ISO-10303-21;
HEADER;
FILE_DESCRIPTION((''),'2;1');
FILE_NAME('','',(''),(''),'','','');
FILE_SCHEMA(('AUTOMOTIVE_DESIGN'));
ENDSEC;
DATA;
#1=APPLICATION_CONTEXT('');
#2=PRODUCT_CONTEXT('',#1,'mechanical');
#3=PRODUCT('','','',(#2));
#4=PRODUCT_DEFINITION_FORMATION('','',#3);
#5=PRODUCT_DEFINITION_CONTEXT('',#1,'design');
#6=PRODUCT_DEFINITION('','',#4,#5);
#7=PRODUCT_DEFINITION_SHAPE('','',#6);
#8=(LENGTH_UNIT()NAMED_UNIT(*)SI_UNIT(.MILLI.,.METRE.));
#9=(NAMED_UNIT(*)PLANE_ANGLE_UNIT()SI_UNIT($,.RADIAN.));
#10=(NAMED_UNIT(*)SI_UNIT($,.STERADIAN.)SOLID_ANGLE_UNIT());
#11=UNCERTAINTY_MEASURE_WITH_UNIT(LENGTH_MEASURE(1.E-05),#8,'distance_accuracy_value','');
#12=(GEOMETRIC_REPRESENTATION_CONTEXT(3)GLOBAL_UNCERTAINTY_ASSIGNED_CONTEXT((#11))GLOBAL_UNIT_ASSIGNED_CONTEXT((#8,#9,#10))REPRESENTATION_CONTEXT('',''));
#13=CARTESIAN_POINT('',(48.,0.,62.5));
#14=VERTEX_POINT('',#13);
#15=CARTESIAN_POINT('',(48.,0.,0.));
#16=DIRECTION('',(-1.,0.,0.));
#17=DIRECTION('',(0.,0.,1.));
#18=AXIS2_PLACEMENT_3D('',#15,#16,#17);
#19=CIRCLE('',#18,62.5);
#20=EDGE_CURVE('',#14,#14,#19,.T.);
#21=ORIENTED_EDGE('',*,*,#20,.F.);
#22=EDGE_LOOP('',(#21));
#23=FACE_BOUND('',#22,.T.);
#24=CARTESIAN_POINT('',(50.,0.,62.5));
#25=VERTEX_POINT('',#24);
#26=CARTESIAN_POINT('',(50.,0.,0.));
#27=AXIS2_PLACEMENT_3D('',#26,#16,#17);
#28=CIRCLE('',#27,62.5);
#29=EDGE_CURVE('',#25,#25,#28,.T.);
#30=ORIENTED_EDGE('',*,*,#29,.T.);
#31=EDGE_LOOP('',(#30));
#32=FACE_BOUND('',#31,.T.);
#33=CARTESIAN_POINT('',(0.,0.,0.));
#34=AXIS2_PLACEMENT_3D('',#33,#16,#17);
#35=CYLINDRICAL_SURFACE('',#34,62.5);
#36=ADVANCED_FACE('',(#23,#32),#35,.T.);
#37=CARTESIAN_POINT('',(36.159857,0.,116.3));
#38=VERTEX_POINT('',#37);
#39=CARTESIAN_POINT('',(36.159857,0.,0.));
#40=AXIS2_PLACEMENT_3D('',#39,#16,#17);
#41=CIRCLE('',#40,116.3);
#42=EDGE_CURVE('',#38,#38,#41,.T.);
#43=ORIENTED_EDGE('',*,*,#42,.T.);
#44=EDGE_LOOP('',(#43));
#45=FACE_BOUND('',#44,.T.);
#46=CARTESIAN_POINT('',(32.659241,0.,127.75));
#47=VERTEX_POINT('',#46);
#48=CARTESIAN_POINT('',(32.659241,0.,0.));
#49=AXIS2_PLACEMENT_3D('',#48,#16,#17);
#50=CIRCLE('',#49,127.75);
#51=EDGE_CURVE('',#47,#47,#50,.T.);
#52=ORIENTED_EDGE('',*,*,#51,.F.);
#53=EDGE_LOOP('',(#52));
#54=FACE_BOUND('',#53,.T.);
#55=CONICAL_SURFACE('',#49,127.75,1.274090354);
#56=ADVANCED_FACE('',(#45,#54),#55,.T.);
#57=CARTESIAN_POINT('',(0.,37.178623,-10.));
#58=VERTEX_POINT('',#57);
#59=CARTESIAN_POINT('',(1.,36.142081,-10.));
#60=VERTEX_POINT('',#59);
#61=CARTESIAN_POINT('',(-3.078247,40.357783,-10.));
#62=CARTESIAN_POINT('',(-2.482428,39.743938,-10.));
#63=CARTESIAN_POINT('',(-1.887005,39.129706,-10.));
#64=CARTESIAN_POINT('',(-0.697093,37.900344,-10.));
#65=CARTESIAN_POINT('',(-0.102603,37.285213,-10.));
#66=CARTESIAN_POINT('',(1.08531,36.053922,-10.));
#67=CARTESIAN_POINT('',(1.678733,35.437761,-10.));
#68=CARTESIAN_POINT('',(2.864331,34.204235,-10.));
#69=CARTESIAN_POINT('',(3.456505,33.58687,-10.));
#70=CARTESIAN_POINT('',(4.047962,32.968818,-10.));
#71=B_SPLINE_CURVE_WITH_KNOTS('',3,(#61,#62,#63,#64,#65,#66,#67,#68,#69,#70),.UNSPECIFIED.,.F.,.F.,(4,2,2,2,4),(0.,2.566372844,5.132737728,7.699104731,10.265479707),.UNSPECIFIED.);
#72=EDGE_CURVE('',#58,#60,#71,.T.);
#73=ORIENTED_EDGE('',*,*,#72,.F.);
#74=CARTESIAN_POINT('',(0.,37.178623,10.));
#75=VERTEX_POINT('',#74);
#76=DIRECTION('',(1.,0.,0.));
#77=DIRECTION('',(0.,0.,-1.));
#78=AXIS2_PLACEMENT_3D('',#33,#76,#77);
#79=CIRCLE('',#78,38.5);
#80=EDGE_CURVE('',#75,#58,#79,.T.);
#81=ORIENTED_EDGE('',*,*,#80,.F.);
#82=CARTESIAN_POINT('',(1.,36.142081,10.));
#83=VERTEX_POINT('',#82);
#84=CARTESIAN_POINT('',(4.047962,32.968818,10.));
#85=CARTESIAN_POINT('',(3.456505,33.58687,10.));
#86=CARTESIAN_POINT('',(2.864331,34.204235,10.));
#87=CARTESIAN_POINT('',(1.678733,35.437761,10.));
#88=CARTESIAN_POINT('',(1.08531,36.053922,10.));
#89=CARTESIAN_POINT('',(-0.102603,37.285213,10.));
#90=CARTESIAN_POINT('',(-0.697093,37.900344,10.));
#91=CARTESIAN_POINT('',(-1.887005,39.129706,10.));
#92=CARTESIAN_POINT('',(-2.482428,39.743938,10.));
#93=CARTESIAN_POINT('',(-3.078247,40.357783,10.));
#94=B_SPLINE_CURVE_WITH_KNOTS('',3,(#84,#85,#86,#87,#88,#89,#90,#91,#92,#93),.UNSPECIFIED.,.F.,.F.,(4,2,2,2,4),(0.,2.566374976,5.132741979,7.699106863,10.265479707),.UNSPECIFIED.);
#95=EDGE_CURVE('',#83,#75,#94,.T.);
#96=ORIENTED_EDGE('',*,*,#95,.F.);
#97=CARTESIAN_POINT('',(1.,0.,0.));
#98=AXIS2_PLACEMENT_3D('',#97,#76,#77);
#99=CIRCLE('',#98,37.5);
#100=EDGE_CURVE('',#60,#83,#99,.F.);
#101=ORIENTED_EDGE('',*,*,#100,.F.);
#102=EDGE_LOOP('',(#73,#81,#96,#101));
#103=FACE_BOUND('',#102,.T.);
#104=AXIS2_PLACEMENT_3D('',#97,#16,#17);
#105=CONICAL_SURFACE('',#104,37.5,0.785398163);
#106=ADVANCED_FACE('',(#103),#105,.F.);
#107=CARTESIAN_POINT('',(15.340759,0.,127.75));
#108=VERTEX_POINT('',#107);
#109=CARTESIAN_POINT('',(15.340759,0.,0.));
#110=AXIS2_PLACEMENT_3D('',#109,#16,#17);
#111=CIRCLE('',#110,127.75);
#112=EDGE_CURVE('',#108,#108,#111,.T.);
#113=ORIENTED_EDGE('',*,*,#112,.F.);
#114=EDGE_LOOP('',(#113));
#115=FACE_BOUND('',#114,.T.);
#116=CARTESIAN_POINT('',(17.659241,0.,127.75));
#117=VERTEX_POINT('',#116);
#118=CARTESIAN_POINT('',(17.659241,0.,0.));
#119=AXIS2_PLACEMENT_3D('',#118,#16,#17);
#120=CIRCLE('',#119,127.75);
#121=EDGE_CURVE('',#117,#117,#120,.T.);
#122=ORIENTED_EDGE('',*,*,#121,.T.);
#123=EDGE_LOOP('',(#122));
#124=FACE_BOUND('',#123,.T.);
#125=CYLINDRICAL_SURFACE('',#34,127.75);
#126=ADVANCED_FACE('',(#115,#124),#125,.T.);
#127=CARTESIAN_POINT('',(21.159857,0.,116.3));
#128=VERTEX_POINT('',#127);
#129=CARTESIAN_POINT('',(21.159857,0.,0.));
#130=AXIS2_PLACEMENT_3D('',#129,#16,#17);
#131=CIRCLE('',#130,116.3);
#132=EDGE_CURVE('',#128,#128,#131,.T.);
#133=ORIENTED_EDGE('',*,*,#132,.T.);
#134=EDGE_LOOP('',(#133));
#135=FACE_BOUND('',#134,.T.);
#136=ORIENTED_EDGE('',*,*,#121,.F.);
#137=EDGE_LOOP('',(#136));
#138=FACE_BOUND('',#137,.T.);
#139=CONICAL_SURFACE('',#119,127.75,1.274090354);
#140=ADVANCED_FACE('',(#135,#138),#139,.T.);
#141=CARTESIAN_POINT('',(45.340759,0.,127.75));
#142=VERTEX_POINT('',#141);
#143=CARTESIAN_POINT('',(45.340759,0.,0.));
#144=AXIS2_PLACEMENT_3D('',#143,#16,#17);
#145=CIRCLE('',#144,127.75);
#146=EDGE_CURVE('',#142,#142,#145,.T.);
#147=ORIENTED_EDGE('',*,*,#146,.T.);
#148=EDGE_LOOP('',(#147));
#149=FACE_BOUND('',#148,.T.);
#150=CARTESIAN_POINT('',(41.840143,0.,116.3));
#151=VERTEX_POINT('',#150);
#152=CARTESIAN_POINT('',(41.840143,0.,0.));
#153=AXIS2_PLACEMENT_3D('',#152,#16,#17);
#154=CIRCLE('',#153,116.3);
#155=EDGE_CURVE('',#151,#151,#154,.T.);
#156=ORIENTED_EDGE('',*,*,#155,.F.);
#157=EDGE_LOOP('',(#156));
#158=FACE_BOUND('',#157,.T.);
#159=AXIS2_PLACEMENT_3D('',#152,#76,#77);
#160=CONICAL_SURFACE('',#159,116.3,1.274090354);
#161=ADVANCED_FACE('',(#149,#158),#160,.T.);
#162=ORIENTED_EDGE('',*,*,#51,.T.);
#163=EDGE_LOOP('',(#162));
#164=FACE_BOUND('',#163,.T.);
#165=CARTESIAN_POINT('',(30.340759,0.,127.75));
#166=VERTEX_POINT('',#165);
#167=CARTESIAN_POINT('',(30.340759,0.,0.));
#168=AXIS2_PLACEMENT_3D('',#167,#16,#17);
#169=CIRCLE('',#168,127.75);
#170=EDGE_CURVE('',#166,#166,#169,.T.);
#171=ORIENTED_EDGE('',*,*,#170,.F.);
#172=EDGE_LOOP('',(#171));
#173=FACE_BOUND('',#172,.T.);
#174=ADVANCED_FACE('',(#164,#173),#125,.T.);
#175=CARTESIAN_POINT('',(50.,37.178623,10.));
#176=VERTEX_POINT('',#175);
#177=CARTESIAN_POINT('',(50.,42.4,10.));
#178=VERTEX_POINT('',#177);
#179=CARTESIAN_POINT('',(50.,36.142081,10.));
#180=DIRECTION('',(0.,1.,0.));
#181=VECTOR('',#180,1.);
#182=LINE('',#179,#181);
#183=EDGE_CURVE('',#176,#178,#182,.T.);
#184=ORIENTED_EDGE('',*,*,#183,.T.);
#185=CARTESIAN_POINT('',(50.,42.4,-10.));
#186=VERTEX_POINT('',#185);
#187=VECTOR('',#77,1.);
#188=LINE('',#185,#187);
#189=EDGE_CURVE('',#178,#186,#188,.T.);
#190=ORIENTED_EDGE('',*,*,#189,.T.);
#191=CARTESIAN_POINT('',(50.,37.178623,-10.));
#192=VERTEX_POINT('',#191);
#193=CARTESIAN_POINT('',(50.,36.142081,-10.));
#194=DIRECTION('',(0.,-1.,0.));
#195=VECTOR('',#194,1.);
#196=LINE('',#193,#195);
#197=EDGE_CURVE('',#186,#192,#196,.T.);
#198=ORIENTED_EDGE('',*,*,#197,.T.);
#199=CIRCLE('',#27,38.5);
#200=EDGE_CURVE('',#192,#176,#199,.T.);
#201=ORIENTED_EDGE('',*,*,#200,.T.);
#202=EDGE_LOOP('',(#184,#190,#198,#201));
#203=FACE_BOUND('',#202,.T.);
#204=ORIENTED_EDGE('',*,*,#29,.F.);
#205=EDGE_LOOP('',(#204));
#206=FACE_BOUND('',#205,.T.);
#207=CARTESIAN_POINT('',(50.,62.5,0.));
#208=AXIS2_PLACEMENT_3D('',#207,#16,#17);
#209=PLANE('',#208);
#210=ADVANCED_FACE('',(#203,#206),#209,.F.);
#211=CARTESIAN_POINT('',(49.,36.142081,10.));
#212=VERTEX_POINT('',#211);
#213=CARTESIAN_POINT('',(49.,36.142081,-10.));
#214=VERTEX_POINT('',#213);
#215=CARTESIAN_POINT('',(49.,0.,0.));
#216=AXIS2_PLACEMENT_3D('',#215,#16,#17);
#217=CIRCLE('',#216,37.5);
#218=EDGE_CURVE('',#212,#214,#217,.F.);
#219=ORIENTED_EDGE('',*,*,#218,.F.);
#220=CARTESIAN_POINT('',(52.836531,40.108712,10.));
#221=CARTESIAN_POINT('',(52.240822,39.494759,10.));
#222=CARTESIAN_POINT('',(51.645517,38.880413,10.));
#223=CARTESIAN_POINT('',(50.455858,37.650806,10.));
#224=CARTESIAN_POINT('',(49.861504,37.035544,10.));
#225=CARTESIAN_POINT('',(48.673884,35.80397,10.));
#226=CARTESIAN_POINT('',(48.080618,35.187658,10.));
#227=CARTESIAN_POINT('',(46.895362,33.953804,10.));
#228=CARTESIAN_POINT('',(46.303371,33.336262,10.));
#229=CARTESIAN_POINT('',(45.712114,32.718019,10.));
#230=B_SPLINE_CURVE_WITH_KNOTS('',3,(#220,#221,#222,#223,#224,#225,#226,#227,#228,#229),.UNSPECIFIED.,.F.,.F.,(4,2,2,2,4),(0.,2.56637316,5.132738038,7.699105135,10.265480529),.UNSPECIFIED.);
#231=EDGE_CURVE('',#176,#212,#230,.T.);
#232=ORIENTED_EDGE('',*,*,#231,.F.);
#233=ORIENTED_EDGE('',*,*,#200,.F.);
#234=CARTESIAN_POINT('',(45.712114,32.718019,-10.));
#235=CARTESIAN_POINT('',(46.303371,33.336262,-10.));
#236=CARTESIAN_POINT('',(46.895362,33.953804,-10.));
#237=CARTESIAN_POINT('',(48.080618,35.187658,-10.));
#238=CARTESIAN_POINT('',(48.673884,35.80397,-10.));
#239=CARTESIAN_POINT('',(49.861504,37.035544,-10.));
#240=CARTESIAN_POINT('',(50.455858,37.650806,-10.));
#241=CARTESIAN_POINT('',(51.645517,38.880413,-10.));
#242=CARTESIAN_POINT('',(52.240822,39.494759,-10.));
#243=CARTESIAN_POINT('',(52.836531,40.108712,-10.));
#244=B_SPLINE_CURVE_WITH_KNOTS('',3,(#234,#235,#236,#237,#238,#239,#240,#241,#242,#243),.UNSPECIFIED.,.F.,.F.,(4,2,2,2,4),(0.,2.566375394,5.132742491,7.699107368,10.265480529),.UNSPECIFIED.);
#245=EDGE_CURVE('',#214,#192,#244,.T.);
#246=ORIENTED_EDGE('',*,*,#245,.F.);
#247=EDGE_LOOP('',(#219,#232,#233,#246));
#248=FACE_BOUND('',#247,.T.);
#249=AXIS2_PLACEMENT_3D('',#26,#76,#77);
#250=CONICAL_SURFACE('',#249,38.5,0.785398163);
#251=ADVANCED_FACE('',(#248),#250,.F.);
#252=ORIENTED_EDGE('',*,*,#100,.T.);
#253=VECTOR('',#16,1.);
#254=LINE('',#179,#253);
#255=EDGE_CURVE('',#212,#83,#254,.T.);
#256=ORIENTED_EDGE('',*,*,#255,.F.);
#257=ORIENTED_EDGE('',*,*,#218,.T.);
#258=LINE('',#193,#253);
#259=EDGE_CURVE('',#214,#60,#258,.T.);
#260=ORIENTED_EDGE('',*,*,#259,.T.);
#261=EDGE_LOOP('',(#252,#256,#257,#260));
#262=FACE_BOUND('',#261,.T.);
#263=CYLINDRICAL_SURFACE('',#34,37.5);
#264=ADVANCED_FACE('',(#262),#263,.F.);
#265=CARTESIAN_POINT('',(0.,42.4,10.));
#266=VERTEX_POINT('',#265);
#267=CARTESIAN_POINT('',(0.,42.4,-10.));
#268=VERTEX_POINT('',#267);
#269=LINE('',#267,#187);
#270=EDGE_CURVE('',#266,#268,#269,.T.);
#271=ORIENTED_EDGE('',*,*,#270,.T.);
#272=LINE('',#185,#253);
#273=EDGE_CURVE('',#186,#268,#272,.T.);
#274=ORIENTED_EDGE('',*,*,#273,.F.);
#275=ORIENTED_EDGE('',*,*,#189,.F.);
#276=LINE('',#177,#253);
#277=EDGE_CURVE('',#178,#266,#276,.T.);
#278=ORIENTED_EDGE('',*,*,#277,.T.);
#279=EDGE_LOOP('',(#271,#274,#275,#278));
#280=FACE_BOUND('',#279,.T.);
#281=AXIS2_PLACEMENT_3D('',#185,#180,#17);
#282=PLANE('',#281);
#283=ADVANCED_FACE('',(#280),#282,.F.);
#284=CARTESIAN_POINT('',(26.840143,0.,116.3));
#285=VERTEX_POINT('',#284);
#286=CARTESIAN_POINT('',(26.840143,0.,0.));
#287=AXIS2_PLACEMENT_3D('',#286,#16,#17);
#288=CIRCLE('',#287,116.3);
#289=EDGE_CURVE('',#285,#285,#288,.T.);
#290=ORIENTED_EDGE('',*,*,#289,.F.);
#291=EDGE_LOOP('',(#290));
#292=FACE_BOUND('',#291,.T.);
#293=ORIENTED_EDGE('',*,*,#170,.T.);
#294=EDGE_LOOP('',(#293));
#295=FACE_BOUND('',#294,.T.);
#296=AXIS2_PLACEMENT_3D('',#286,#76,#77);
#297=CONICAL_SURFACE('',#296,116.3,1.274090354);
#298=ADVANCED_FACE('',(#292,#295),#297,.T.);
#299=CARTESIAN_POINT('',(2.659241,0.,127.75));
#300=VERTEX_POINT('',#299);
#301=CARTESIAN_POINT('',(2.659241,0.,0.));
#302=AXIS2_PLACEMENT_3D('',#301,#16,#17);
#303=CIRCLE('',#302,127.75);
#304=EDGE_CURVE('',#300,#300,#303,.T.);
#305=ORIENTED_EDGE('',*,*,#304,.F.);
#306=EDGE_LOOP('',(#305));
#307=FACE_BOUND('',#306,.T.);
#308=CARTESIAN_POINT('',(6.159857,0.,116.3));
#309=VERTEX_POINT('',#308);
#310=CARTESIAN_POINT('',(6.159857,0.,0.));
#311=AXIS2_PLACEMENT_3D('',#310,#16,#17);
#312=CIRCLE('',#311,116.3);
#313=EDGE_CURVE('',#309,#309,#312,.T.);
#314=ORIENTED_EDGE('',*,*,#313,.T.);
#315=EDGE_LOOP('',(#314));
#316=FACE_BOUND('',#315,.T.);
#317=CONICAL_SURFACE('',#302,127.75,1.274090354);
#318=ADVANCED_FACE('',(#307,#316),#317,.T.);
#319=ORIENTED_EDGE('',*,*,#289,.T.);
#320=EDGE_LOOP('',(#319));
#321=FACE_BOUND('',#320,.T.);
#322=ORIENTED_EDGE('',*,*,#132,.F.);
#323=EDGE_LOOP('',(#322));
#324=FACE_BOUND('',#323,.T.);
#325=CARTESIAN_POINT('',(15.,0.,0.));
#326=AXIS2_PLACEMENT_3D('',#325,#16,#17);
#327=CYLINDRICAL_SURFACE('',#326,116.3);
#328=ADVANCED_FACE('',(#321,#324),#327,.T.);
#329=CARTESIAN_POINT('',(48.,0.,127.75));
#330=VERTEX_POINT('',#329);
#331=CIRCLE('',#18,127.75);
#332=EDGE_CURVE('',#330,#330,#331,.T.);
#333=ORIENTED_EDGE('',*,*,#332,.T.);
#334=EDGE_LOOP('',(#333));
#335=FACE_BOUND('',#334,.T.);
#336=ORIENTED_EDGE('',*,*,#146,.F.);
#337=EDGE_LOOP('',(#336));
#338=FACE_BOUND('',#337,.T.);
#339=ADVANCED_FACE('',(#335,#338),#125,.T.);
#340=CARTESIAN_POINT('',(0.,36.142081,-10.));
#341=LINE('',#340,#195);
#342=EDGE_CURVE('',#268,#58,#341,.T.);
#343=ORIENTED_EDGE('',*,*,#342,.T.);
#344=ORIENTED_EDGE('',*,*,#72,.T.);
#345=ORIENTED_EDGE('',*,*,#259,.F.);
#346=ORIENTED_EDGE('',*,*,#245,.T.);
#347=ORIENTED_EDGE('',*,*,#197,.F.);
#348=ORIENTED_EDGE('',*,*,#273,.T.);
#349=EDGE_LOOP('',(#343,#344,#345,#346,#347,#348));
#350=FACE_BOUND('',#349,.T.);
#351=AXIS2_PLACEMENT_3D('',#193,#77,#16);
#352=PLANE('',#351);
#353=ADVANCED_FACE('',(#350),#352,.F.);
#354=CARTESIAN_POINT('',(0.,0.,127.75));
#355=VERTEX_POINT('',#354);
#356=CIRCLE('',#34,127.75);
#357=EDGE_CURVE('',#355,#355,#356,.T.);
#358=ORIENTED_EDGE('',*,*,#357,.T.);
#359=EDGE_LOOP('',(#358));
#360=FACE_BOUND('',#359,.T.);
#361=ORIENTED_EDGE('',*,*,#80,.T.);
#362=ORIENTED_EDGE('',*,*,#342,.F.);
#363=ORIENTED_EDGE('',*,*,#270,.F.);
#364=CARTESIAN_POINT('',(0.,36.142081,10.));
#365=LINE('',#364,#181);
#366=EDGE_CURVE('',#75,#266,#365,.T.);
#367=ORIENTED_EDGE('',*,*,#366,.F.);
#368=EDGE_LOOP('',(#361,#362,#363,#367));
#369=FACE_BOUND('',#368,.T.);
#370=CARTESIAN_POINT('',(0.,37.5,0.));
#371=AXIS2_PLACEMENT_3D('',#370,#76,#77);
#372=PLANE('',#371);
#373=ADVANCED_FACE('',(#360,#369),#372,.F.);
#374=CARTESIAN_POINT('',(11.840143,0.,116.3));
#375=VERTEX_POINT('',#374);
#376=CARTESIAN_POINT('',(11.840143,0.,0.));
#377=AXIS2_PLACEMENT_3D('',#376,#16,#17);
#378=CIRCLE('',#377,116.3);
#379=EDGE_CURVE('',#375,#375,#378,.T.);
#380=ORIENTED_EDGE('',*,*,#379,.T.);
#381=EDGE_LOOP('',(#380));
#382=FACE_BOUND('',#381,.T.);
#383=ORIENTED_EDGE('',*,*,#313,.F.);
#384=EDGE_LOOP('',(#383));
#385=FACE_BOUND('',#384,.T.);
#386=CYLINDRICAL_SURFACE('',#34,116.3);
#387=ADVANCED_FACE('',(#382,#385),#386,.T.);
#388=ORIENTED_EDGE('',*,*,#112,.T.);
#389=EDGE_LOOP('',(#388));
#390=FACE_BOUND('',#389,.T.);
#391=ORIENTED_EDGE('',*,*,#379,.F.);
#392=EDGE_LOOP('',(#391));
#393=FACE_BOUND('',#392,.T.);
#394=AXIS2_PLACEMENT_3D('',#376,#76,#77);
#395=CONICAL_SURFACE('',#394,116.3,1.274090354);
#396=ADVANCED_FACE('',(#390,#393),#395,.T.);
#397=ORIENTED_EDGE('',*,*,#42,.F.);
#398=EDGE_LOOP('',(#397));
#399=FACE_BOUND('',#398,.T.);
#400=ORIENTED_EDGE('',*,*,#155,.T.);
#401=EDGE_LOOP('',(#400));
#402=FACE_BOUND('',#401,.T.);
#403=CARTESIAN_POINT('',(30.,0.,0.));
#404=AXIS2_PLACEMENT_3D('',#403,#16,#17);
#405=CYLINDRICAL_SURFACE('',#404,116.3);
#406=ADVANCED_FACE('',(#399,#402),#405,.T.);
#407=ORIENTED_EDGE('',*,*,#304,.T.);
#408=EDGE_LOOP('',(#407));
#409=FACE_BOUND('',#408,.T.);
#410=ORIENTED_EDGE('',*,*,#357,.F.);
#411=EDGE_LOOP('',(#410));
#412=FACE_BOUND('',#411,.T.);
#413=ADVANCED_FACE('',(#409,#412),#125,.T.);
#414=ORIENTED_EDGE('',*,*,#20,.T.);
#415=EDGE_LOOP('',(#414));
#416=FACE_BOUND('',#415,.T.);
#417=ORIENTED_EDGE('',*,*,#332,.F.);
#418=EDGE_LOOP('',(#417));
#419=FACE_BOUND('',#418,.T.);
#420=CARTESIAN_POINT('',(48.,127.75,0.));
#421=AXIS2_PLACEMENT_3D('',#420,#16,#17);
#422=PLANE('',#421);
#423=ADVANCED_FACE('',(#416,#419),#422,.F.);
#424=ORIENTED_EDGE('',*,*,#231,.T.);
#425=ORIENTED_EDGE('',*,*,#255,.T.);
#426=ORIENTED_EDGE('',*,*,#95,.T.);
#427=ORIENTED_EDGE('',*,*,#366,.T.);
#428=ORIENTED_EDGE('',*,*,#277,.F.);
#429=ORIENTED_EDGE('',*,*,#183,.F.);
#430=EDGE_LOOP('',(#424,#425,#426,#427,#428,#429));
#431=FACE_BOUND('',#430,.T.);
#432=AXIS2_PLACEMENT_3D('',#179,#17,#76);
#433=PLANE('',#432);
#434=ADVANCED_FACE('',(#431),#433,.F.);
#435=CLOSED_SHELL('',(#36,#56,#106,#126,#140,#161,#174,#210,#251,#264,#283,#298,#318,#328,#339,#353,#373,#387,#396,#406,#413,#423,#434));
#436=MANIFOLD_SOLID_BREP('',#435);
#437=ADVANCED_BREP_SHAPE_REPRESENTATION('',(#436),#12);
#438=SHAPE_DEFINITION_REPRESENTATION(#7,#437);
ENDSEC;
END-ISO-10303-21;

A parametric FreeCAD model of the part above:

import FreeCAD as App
import Part
import Sketcher
from FreeCAD import Vector
Q = App.Units.Quantity


def edges_at(feature, points):
    """Names of the edges that pass closest to the given points."""
    edges = feature.Shape.Edges
    near = lambda p: min(range(len(edges)), key=lambda i: edges[i].distToShape(Part.Vertex(*p))[0])
    return sorted({f"Edge{near(p) + 1}" for p in points})


def add_polygon(sketch, points):
    """Adds a closed chain of lines whose ends are joined by coincident constraints."""
    first, n = sketch.GeometryCount, len(points)
    for a, b in zip(points, points[1:] + points[:1]):
        sketch.addGeometry(Part.LineSegment(App.Vector(*a, 0), App.Vector(*b, 0)), False)
    for i in range(n):
        sketch.addConstraint(Sketcher.Constraint("Coincident", first + i, 2, first + (i + 1) % n, 1))

doc = App.newDocument("Part")
body = doc.addObject("PartDesign::Body", "Body")

sketch1 = body.newObject("Sketcher::SketchObject", "Sketch")
sketch1.AttachmentSupport = (doc.getObject("XY_Plane"), [""])
sketch1.MapMode = "FlatFace"
add_polygon(sketch1, [(0, 127.8), (0, 37.5), (50, 37.5), (50, 62.5), (48, 62.5), (48, 127.8)])
sketch1.addConstraint(Sketcher.Constraint("Vertical", 0))
sketch1.addConstraint(Sketcher.Constraint("Horizontal", 1))
sketch1.addConstraint(Sketcher.Constraint("Vertical", 2))
sketch1.addConstraint(Sketcher.Constraint("Horizontal", 3))
sketch1.addConstraint(Sketcher.Constraint("Vertical", 4))
sketch1.addConstraint(Sketcher.Constraint("Horizontal", 5))
sketch1.addConstraint(Sketcher.Constraint("PointOnObject", 0, 2, -2))
sketch1.addConstraint(Sketcher.Constraint("DistanceX", 1, 1, 1, 2, 50.0))
sketch1.addConstraint(Sketcher.Constraint("DistanceX", 3, 2, 3, 1, 2.0))
sketch1.addConstraint(Sketcher.Constraint("DistanceY", 2, 1, 2, 2, 25.0))
sketch1.addConstraint(Sketcher.Constraint("DistanceY", 0, 2, 0, 1, 90.25))
sketch1.addConstraint(Sketcher.Constraint("DistanceY", -1, 1, 0, 2, 37.5))
revolution = body.newObject("PartDesign::Revolution", "Revolution")
revolution.Profile = sketch1
revolution.ReferenceAxis = (sketch1, ["H_Axis"])
revolution.Angle = 360

sketch2 = body.newObject("Sketcher::SketchObject", "Sketch001")
sketch2.AttachmentSupport = (doc.getObject("XY_Plane"), [""])
sketch2.MapMode = "FlatFace"
add_polygon(sketch2, [(12, 116), (15, 128), (3, 128), (6, 116)])
sketch2.addConstraint(Sketcher.Constraint("Horizontal", 1))
sketch2.addConstraint(Sketcher.Constraint("Horizontal", 3))
sketch2.addConstraint(Sketcher.Constraint("Equal", 0, 2))
sketch2.addConstraint(Sketcher.Constraint("Angle", 0, Q("73 deg")))
sketch2.addConstraint(Sketcher.Constraint("DistanceY", -1, 1, 2, 2, 116.3))
sketch2.addConstraint(Sketcher.Constraint("DistanceY", -1, 1, 0, 2, 127.75))
sketch2.addConstraint(Sketcher.Constraint("DistanceX", 1, 2, 1, 1, 12.681519))
sketch2.addConstraint(Sketcher.Constraint("DistanceX", -1, 1, 0, 2, 15.340759))
groove = body.newObject("PartDesign::Groove", "Groove")
groove.Profile = sketch2
groove.ReferenceAxis = (sketch2, ["H_Axis"])
groove.Angle = 360
doc.recompute()

linearpattern = body.newObject("PartDesign::LinearPattern", "LinearPattern")
linearpattern.Originals = [groove]
linearpattern.Direction = (doc.getObject("X_Axis"), [""])
linearpattern.Mode = "offset"
linearpattern.Offset = 15
linearpattern.Occurrences = 3
body.Tip = linearpattern
doc.recompute()

chamfer = body.newObject("PartDesign::Chamfer", "Chamfer")
chamfer.Base = (linearpattern, edges_at(linearpattern, [(50, 0, -37.5), (0, 0, -37.5)]))
chamfer.Size = 1

sketch3 = body.newObject("Sketcher::SketchObject", "Sketch002")
sketch3.AttachmentSupport = (doc.getObject("YZ_Plane"), [""])
sketch3.MapMode = "FlatFace"
add_polygon(sketch3, [(42, -10), (36, -10), (36, 10), (42, 10)])
sketch3.addConstraint(Sketcher.Constraint("Horizontal", 0))
sketch3.addConstraint(Sketcher.Constraint("Vertical", 1))
sketch3.addConstraint(Sketcher.Constraint("Horizontal", 2))
sketch3.addConstraint(Sketcher.Constraint("Vertical", 3))
sketch3.addConstraint(Sketcher.Constraint("DistanceY", 1, 1, 1, 2, 20.0))
sketch3.addConstraint(Sketcher.Constraint("DistanceY", 0, 2, -1, 1, 10.0))
sketch3.addConstraint(Sketcher.Constraint("DistanceX", -1, 1, 2, 2, 42.4))
sketch3.addConstraint(Sketcher.Constraint("DistanceX", 0, 2, 0, 1, 6.257919))
pocket1 = body.newObject("PartDesign::Pocket", "Pocket")
pocket1.Profile = sketch3
pocket1.Type = "ThroughAll"
pocket1.Reversed = True

doc.recompute()
